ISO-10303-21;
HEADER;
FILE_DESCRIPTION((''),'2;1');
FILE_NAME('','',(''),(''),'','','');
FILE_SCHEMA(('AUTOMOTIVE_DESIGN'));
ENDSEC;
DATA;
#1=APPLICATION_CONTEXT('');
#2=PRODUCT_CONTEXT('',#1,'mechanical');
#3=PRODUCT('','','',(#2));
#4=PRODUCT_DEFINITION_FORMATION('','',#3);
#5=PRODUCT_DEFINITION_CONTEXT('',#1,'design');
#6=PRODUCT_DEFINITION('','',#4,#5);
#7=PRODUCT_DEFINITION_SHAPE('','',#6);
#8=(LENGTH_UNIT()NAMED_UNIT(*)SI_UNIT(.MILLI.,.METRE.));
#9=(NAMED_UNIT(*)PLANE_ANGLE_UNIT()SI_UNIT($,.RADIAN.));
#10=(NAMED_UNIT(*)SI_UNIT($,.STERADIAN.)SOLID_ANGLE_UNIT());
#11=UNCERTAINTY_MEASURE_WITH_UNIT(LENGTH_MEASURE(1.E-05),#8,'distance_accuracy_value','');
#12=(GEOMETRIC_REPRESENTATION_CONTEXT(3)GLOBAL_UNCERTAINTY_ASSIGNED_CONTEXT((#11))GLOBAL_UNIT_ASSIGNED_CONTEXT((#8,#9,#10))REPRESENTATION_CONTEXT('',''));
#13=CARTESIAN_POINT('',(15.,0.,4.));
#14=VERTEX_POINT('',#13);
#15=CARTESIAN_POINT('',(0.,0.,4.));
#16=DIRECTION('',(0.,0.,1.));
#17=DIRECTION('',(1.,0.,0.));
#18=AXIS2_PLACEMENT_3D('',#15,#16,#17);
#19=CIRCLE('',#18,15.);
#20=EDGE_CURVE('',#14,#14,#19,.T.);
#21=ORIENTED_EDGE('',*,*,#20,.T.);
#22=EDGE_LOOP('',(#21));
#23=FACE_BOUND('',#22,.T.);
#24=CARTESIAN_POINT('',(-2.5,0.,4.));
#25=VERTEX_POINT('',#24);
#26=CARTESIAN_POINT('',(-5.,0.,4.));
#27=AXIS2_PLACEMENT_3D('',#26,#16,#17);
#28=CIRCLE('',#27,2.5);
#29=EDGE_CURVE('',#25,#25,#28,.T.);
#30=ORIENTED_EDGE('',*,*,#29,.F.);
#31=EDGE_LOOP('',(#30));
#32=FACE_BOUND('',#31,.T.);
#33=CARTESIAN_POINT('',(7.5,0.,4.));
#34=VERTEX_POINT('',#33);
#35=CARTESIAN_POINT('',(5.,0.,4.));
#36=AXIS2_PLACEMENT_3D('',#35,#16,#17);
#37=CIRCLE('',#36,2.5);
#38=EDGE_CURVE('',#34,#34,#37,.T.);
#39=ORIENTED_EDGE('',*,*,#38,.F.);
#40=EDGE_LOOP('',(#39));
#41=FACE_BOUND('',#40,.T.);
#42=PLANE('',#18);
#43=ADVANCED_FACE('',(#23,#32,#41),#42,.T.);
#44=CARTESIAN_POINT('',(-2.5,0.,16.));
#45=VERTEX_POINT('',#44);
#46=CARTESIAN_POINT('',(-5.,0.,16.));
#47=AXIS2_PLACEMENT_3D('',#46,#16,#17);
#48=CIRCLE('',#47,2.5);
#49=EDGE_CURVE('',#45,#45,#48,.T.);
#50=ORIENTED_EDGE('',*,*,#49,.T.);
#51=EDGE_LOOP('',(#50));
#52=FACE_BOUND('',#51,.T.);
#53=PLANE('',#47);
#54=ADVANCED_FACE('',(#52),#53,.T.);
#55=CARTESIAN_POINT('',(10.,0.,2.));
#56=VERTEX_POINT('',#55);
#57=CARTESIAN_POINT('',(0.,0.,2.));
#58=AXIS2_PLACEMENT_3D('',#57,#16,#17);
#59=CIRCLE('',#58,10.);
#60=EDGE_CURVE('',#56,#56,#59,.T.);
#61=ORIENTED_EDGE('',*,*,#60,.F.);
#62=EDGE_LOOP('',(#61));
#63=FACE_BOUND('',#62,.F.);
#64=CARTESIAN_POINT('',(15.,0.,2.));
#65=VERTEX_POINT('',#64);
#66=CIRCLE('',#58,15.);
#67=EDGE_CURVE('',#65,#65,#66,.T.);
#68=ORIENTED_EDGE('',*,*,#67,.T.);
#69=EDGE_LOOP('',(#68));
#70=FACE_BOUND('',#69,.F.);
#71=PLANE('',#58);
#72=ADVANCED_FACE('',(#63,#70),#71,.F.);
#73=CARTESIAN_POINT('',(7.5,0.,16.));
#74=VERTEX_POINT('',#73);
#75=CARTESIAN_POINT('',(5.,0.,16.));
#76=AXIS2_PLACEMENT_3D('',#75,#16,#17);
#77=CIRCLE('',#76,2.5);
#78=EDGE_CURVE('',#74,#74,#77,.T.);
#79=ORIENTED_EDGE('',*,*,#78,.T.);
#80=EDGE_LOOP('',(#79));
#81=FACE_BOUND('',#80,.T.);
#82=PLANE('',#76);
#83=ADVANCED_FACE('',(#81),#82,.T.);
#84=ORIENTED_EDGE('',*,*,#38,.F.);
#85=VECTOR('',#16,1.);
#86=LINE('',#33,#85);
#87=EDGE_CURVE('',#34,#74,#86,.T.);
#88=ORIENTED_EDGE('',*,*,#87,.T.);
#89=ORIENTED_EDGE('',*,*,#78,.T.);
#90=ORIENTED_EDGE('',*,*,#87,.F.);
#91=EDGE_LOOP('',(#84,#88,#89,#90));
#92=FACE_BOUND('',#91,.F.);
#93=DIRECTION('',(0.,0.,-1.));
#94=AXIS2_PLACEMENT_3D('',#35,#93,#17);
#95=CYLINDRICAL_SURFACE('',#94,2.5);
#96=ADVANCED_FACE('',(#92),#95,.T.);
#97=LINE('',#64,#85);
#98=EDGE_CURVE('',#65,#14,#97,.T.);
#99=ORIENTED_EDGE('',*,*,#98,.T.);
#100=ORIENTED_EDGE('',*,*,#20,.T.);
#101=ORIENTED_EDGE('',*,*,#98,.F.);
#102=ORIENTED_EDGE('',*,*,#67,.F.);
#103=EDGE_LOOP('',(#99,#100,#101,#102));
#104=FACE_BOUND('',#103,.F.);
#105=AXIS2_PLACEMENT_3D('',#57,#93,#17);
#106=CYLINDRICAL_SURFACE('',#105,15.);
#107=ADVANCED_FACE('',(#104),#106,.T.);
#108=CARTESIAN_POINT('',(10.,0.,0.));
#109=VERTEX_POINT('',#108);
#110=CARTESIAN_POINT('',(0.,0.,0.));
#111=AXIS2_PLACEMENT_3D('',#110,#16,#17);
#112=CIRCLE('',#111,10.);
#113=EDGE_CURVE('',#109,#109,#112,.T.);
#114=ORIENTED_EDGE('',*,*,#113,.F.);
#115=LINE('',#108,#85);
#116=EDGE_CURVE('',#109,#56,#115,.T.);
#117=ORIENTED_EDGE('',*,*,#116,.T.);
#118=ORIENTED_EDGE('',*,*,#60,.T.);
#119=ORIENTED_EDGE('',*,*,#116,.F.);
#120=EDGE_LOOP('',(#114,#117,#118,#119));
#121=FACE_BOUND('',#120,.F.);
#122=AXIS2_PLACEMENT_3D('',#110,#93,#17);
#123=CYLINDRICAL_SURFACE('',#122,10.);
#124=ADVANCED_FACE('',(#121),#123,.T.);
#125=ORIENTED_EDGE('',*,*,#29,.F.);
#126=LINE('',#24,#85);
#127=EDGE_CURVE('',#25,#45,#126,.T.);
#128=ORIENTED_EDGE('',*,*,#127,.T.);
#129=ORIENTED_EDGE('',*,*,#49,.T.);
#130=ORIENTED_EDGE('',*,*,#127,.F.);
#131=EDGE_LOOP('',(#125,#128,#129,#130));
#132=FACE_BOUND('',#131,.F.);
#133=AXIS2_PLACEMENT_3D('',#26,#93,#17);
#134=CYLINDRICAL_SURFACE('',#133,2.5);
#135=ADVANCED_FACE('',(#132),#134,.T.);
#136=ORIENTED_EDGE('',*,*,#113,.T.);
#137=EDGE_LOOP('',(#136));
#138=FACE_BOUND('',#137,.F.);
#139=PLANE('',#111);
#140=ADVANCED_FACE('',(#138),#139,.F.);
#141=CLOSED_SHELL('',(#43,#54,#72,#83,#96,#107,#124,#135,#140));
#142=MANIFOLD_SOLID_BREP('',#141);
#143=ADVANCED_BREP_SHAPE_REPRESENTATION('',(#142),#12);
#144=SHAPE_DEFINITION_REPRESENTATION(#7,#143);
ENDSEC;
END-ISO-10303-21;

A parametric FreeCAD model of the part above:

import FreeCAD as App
import Part
import Sketcher

doc = App.newDocument("Part")
body = doc.addObject("PartDesign::Body", "Body")

# Sketch on XY plane
sketch1 = doc.addObject("Sketcher::SketchObject", "Sketch")
body.addObject(sketch1)
sketch1.AttachmentSupport = (doc.XY_Plane, [""])
sketch1.MapMode = "FlatFace"
sketch1.addGeometry(Part.Circle(App.Vector(0, 0, 0), App.Vector(0, 0, 1), 10), False)
sketch1.addConstraint([
    Sketcher.Constraint("Coincident", 0, 3, -1, 1),
    Sketcher.Constraint("Diameter", 0, 20.0),
])
pad1 = doc.addObject("PartDesign::Pad", "Pad")
body.addObject(pad1)
pad1.Profile = sketch1
pad1.Length = 2

# Sketch on XY plane
sketch2 = doc.addObject("Sketcher::SketchObject", "Sketch001")
body.addObject(sketch2)
sketch2.AttachmentSupport = (doc.XY_Plane, [""])
sketch2.MapMode = "FlatFace"
sketch2.AttachmentOffset = App.Placement(App.Vector(0, 0, 2), App.Rotation())
sketch2.addGeometry(Part.Circle(App.Vector(0, 0, 0), App.Vector(0, 0, 1), 15), False)
sketch2.addConstraint([
    Sketcher.Constraint("Coincident", 0, 3, -1, 1),
    Sketcher.Constraint("Diameter", 0, 30.0),
])
pad2 = doc.addObject("PartDesign::Pad", "Pad001")
body.addObject(pad2)
pad2.Profile = sketch2
pad2.Length = 2

# Sketch on XY plane
sketch3 = doc.addObject("Sketcher::SketchObject", "Sketch002")
body.addObject(sketch3)
sketch3.AttachmentSupport = (doc.XY_Plane, [""])
sketch3.MapMode = "FlatFace"
sketch3.AttachmentOffset = App.Placement(App.Vector(0, 0, 4), App.Rotation())
sketch3.addGeometry([
    Part.Circle(App.Vector(-5, 0, 0), App.Vector(0, 0, 1), 2.5),
    Part.Circle(App.Vector(5, 0, 0), App.Vector(0, 0, 1), 2.5),
], False)
sketch3.addConstraint([
    Sketcher.Constraint("Equal", 0, 1),
    Sketcher.Constraint("Symmetric", 0, 3, 1, 3, -1, 1),
    Sketcher.Constraint("PointOnObject", 0, 3, -1),
    Sketcher.Constraint("Diameter", 0, 5.0),
    Sketcher.Constraint("DistanceX", 0, 3, -1, 1, 5.0),
])
pad3 = doc.addObject("PartDesign::Pad", "Pad002")
body.addObject(pad3)
pad3.Profile = sketch3
pad3.Length = 12

doc.recompute()
